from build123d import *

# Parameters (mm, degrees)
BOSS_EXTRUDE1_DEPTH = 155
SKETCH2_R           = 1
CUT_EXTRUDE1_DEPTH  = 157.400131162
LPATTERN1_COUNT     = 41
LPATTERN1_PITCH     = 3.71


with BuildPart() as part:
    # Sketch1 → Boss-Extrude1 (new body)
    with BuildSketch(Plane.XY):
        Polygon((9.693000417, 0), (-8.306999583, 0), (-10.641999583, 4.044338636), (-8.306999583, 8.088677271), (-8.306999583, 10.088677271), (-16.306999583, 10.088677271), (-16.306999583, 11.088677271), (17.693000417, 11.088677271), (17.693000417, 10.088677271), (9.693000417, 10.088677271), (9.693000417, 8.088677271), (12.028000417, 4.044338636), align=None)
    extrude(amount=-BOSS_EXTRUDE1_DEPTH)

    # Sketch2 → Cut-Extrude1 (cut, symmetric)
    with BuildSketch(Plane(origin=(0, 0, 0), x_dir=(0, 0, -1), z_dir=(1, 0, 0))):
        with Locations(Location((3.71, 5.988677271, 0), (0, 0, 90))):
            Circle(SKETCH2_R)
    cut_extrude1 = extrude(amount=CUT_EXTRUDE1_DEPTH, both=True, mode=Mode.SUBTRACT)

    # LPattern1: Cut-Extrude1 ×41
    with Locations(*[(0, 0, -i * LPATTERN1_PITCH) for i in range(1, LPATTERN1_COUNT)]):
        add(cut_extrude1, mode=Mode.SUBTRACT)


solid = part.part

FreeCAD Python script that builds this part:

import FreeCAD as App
import Part
import Sketcher
from FreeCAD import Vector
Q = App.Units.Quantity


def add_polygon(sketch, points):
    """Adds a closed chain of lines whose ends are joined by coincident constraints."""
    first, n = sketch.GeometryCount, len(points)
    for a, b in zip(points, points[1:] + points[:1]):
        sketch.addGeometry(Part.LineSegment(App.Vector(*a, 0), App.Vector(*b, 0)), False)
    for i in range(n):
        sketch.addConstraint(Sketcher.Constraint("Coincident", first + i, 2, first + (i + 1) % n, 1))

doc = App.newDocument("Part")
body = doc.addObject("PartDesign::Body", "Body")

# Sketch on XY plane
sketch1 = body.newObject("Sketcher::SketchObject", "Sketch")
sketch1.AttachmentSupport = (doc.getObject("XY_Plane"), [""])
sketch1.MapMode = "FlatFace"
add_polygon(sketch1, [(-8.307, 0), (9.693, 0), (12.028, 4.044339), (9.693, 8.088677), (9.693, 10.088677), (17.693, 10.088677), (17.693, 11.088677), (-16.307, 11.088677), (-16.307, 10.088677), (-8.307, 10.088677), (-8.307, 8.088677), (-10.642, 4.044339)])  # lines 0-11
sketch1.addConstraint([
    Sketcher.Constraint("Horizontal", 0),
    Sketcher.Constraint("Vertical", 3),
    Sketcher.Constraint("Horizontal", 4),
    Sketcher.Constraint("Vertical", 5),
    Sketcher.Constraint("Horizontal", 6),
    Sketcher.Constraint("Vertical", 7),
    Sketcher.Constraint("Horizontal", 8),
    Sketcher.Constraint("Vertical", 9),
    Sketcher.Constraint("PointOnObject", 0, 2, -1),
    Sketcher.Constraint("Parallel", 1, 10),
    Sketcher.Constraint("Parallel", 2, 11),
    Sketcher.Constraint("Horizontal", 4, 2, 7, 2),
    Sketcher.Constraint("Horizontal", 2, 2, 9, 2),
    Sketcher.Constraint("Horizontal", 1, 2, 10, 2),
    Sketcher.Constraint("Vertical", 0, 2, 2, 2),
    Sketcher.Constraint("Vertical", 9, 2, 11, 2),
    Sketcher.Constraint("Equal", 4, 8),
    Sketcher.Constraint("DistanceX", 0, 1, 0, 2, Q("18 mm")),
    Sketcher.Constraint("DistanceX", 4, 1, 4, 2, Q("8 mm")),
    Sketcher.Constraint("DistanceY", 3, 1, 3, 2, Q("2 mm")),
    Sketcher.Constraint("DistanceY", 5, 1, 5, 2, Q("1 mm")),
    Sketcher.Constraint("Angle", 1, Q("60 deg")),
    Sketcher.Constraint("Distance", 1, Q("4.67 mm")),
    Sketcher.Constraint("DistanceX", -1, 1, 0, 2, Q("9.693 mm")),
])
pad1 = body.newObject("PartDesign::Pad", "Pad")
pad1.Profile = sketch1
pad1.Length = 155
pad1.Reversed = True

# Sketch on YZ plane
sketch2 = body.newObject("Sketcher::SketchObject", "Sketch001")
sketch2.AttachmentSupport = (doc.getObject("YZ_Plane"), [""])
sketch2.MapMode = "FlatFace"
sketch2.addGeometry(Part.Circle(Vector(5.988677, -3.71, 0), Vector(0, 0, 1), 1), False)
sketch2.addConstraint([
    Sketcher.Constraint("Diameter", 0, Q("2 mm")),
    Sketcher.Constraint("DistanceY", 0, 3, -1, 1, Q("3.71 mm")),
    Sketcher.Constraint("DistanceX", -1, 1, 0, 3, Q("5.988677 mm")),
])
pocket1 = body.newObject("PartDesign::Pocket", "Pocket")
pocket1.Profile = sketch2
pocket1.Length = 314.800262
pocket1.Midplane = True
doc.recompute()

linearpattern = body.newObject("PartDesign::LinearPattern", "LinearPattern")
linearpattern.Originals = [pocket1]
linearpattern.Direction = (doc.getObject("Z_Axis"), [""])
linearpattern.Mode = "offset"
linearpattern.Offset = 3.71
linearpattern.Occurrences = 41
linearpattern.Reversed = True
body.Tip = linearpattern

doc.recompute()
